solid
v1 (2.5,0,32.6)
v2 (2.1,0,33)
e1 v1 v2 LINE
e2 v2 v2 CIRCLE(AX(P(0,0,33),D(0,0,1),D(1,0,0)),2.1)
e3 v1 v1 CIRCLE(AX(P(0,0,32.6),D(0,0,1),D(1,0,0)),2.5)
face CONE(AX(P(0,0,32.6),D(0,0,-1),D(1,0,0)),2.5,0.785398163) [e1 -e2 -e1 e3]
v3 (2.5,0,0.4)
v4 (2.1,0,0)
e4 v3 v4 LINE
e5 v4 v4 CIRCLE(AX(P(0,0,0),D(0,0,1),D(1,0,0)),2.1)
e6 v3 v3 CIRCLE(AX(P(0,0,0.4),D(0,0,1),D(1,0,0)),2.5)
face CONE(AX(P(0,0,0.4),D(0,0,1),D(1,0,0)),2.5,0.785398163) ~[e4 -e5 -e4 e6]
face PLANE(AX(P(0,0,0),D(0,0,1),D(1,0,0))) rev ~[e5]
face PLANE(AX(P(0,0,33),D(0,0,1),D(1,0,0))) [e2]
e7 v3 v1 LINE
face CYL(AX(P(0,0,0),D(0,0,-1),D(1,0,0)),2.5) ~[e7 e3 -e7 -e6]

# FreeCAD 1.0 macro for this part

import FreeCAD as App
import Part
import Sketcher
from FreeCAD import Vector
Q = App.Units.Quantity


def edges_at(feature, points):
    """Names of the edges that pass closest to the given points."""
    edges = feature.Shape.Edges
    near = lambda p: min(range(len(edges)), key=lambda i: edges[i].distToShape(Part.Vertex(*p))[0])
    return sorted({f"Edge{near(p) + 1}" for p in points})

doc = App.newDocument("Part")
body = doc.addObject("PartDesign::Body", "Body")

# Sketch on XY plane
sketch1 = doc.addObject("Sketcher::SketchObject", "Sketch")
body.addObject(sketch1)
sketch1.AttachmentSupport = (doc.XY_Plane, [""])
sketch1.MapMode = "FlatFace"
sketch1.addGeometry(Part.Circle(Vector(0, 0, 0), Vector(0, 0, 1), 2.5), False)
sketch1.addConstraint([
    Sketcher.Constraint("Coincident", 0, 3, -1, 1),
    Sketcher.Constraint("Diameter", 0, Q("5 mm")),
])
pad1 = doc.addObject("PartDesign::Pad", "Pad")
body.addObject(pad1)
pad1.Profile = sketch1
pad1.Length = 33
doc.recompute()

chamfer = doc.addObject("PartDesign::Chamfer", "Chamfer")
body.addObject(chamfer)
chamfer.Base = (pad1, edges_at(pad1, [(-2.5, 0, 0), (-2.5, 0, 33)]))
chamfer.Size = 0.4

doc.recompute()
